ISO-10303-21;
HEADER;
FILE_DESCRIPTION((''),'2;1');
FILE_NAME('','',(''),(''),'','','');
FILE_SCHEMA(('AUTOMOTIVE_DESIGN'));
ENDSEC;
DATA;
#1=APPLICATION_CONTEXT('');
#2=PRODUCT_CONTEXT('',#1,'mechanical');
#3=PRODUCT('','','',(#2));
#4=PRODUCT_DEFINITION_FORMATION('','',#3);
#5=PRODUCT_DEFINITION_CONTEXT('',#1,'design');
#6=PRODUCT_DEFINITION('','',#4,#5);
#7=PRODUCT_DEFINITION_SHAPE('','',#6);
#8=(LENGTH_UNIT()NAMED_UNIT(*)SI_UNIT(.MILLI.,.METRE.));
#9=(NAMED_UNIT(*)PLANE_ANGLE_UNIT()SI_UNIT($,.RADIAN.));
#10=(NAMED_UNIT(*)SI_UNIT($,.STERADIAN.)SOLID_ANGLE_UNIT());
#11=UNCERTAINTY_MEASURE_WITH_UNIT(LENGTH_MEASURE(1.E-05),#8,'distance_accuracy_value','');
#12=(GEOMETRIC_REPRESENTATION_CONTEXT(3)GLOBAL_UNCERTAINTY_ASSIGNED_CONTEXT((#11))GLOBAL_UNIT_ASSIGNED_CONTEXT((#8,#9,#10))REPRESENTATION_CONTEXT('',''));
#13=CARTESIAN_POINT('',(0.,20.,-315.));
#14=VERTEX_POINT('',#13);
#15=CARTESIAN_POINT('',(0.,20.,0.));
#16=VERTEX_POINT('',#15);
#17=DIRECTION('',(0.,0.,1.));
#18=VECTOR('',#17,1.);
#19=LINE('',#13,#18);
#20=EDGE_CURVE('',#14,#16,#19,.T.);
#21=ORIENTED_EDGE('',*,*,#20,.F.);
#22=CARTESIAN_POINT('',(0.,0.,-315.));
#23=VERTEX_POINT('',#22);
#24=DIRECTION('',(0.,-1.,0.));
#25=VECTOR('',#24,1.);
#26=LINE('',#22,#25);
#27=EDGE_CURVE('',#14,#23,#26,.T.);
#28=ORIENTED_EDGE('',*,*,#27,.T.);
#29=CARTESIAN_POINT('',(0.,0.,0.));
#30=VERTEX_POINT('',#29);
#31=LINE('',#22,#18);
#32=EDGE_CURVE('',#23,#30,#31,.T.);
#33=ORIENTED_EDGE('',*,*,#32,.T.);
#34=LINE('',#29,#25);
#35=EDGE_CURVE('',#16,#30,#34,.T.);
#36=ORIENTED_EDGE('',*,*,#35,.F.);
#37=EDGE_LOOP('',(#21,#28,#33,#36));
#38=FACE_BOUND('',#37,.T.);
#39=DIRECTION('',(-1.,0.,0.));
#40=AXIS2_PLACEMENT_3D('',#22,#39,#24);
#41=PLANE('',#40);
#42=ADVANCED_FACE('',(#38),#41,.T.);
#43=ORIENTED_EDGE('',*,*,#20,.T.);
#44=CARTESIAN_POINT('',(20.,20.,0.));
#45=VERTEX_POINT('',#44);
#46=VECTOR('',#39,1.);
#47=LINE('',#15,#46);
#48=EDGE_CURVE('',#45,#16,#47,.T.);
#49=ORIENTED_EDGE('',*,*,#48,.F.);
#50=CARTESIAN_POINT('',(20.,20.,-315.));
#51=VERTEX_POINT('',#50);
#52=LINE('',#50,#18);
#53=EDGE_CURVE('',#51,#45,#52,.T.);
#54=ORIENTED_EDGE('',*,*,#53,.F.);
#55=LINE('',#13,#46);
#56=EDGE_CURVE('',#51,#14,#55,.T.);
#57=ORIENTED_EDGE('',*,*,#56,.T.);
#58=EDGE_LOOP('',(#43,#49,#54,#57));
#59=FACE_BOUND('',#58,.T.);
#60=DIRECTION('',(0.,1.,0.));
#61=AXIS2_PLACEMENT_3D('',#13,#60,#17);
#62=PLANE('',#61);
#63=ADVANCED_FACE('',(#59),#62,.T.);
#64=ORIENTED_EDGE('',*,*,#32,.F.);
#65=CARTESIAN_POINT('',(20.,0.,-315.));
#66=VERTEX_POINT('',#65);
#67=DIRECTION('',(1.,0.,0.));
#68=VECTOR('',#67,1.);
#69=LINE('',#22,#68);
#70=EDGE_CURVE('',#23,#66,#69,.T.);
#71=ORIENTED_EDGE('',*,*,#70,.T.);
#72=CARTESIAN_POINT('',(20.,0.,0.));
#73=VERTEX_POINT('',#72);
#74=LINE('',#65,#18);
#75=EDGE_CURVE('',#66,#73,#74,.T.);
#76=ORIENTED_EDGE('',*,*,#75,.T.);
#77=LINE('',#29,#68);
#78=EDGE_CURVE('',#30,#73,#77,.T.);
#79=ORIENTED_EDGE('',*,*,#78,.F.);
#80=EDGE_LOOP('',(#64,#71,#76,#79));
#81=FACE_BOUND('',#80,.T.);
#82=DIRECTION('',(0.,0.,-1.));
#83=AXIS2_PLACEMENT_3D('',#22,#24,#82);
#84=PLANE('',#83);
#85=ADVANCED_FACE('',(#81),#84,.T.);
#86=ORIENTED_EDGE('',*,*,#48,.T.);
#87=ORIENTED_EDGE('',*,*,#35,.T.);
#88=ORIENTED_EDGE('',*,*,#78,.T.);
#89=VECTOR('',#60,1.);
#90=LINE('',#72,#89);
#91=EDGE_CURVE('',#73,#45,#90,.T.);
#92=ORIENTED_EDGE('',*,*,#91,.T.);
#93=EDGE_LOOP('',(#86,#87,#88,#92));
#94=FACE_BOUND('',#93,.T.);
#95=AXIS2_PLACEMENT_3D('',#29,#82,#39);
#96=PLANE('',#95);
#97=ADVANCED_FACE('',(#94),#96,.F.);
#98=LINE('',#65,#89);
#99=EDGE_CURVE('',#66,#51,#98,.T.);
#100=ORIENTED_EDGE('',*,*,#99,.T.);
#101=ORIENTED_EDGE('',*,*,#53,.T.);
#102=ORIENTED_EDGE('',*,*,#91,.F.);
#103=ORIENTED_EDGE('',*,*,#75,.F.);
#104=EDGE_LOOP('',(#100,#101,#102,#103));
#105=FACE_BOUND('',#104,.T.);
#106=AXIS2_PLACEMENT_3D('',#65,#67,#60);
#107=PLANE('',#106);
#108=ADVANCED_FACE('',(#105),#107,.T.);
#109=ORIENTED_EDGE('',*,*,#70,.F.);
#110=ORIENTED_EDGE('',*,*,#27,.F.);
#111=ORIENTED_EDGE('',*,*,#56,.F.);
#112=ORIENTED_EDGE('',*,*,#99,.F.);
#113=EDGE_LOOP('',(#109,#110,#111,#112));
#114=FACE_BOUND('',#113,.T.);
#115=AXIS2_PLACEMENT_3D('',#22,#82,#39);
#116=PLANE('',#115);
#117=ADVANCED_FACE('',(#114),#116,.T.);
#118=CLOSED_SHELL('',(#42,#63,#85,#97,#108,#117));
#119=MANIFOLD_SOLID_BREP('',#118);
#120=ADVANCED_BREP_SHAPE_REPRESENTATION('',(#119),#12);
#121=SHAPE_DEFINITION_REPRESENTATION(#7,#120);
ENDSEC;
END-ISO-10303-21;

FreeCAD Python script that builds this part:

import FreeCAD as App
import Part
import Sketcher

V = App.Vector
Q = App.Units.Quantity

doc = App.newDocument("Part")
body = doc.addObject("PartDesign::Body", "Body")

# Sketch on XY plane
sketch1 = doc.addObject("Sketcher::SketchObject", "Sketch")
body.addObject(sketch1)
sketch1.AttachmentSupport = (doc.XY_Plane, [""])
sketch1.MapMode = "FlatFace"
sketch1.addGeometry([
    Part.LineSegment(V(0, 20, 0), V(0, 0, 0)),
    Part.LineSegment(V(0, 0, 0), V(20, 0, 0)),
    Part.LineSegment(V(20, 0, 0), V(20, 20, 0)),
    Part.LineSegment(V(20, 20, 0), V(0, 20, 0)),
], False)
sketch1.addConstraint([
    Sketcher.Constraint("Coincident", 0, 2, 1, 1),
    Sketcher.Constraint("Coincident", 1, 2, 2, 1),
    Sketcher.Constraint("Coincident", 2, 2, 3, 1),
    Sketcher.Constraint("Coincident", 3, 2, 0, 1),
    Sketcher.Constraint("Vertical", 0),
    Sketcher.Constraint("Horizontal", 1),
    Sketcher.Constraint("Vertical", 2),
    Sketcher.Constraint("Horizontal", 3),
    Sketcher.Constraint("Coincident", 0, 2, -1, 1),
    Sketcher.Constraint("Equal", 3, 0),
    Sketcher.Constraint("DistanceX", 1, 1, 1, 2, Q("20 mm")),
])
pad1 = doc.addObject("PartDesign::Pad", "Pad")
body.addObject(pad1)
pad1.Profile = sketch1
pad1.Length = 315
pad1.Reversed = True

doc.recompute()
